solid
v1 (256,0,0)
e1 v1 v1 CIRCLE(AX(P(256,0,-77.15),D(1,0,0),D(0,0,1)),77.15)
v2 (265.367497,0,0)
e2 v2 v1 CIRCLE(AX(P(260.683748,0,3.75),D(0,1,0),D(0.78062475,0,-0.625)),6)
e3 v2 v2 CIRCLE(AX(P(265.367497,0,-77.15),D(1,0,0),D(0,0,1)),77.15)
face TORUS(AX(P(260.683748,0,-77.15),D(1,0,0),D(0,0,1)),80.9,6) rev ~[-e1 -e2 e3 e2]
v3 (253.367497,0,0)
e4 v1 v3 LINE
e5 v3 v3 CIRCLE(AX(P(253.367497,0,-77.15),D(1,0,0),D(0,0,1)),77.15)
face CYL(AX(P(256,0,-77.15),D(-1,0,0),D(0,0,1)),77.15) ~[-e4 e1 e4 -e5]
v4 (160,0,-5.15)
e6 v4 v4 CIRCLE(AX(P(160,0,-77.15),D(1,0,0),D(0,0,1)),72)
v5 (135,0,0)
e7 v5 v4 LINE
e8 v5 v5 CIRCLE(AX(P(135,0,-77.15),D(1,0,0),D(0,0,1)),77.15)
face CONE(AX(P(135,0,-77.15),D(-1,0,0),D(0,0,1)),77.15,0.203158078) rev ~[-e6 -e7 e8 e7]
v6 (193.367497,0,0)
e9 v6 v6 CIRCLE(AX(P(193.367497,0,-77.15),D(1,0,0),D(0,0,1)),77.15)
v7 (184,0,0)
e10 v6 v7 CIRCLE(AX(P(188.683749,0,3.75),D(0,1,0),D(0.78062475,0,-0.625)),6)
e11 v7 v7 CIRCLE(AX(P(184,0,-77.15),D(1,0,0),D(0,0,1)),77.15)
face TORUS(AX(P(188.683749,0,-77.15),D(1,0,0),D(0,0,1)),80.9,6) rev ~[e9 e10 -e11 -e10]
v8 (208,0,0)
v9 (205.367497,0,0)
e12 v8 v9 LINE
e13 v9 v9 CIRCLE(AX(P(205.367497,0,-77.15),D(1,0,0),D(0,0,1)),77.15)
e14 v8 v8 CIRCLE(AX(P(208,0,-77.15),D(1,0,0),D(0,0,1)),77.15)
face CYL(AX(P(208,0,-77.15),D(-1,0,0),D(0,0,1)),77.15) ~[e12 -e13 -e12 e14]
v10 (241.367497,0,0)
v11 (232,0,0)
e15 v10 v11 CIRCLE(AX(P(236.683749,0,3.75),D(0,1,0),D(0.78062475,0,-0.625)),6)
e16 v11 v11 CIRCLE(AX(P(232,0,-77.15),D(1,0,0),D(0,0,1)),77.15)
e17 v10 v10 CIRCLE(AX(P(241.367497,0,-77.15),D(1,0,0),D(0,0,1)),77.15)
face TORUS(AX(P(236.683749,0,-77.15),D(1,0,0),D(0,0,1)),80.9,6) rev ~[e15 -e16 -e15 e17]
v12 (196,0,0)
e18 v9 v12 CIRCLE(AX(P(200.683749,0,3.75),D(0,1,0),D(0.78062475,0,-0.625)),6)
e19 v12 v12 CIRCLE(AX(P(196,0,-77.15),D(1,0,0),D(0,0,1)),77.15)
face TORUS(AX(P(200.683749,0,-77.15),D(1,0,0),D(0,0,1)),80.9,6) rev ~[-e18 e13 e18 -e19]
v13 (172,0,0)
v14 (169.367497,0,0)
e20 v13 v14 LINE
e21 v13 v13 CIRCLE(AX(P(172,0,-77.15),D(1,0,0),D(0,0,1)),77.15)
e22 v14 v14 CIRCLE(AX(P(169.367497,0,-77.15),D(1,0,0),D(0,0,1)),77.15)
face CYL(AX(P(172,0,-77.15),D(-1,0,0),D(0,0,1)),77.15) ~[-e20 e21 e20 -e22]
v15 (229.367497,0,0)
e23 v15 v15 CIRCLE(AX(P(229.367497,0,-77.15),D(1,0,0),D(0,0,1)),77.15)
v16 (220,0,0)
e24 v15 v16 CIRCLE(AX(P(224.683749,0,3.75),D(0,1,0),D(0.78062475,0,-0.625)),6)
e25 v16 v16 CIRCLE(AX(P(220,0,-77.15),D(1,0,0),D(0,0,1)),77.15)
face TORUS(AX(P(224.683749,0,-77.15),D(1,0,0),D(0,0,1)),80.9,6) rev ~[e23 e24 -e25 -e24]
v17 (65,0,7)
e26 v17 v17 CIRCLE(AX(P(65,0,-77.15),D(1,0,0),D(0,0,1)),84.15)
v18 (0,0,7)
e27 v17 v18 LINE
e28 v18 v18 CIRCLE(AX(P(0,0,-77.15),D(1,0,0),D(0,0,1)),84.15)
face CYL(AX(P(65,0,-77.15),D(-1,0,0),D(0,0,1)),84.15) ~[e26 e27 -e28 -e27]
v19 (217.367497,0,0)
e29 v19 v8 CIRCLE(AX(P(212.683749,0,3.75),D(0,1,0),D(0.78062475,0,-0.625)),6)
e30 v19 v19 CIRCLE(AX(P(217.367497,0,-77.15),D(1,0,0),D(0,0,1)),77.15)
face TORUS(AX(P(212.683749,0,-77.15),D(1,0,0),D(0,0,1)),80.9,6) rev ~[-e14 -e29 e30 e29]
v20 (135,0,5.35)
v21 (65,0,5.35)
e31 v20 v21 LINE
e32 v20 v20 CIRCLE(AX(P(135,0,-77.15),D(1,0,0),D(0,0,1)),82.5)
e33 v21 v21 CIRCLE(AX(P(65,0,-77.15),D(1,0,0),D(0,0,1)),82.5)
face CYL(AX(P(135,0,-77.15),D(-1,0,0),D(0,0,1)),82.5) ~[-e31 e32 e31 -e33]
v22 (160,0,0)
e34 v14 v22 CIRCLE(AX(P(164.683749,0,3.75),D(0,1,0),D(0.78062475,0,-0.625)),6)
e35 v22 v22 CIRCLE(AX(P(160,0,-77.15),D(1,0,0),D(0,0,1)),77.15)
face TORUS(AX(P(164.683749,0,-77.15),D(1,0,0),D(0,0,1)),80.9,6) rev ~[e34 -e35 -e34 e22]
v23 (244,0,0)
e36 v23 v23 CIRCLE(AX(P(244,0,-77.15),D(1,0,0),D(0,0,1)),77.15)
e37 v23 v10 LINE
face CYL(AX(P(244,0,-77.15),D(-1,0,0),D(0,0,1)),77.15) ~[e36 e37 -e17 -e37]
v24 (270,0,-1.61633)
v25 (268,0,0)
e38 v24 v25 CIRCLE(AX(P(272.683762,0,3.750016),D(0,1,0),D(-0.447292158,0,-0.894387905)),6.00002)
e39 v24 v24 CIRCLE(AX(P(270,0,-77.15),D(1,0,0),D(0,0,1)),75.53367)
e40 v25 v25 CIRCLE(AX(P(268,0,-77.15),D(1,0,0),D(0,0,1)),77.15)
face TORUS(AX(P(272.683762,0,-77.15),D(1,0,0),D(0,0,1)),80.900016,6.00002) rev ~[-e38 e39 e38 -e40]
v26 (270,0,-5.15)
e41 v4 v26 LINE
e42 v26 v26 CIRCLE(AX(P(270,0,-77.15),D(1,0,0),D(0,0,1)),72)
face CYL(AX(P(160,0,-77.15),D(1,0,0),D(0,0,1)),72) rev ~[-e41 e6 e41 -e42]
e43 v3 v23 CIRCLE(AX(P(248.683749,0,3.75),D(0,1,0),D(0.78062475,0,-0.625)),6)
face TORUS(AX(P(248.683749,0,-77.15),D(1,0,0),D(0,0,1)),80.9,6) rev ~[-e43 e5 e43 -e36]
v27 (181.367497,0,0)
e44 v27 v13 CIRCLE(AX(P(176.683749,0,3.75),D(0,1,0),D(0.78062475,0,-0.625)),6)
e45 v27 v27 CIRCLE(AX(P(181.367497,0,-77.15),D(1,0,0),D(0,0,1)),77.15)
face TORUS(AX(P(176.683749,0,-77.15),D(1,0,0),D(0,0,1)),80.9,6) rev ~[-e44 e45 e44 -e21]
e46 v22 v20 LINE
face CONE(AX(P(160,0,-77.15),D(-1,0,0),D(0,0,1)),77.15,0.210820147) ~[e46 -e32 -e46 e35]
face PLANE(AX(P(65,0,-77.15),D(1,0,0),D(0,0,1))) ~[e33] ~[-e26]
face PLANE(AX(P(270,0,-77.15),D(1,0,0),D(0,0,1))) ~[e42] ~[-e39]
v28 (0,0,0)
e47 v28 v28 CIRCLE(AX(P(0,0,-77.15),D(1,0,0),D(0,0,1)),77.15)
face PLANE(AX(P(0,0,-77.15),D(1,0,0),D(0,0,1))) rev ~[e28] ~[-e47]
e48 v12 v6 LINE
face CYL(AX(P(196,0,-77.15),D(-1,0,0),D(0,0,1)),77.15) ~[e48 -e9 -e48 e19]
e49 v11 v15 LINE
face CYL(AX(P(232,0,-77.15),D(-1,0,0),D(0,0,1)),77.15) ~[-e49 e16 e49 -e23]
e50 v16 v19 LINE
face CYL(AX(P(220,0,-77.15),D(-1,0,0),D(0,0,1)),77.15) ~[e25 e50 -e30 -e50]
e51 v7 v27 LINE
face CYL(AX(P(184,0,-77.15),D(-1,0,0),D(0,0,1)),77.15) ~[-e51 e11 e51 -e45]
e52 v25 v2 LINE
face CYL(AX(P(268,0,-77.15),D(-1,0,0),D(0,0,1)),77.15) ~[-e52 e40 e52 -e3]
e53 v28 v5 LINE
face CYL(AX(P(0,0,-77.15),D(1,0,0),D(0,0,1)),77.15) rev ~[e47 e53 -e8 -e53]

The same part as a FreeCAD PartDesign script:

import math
import FreeCAD as App
import Part
import Sketcher

doc = App.newDocument("Part")
params = doc.addObject("Spreadsheet::Sheet", "Params")
for row, (alias, value) in enumerate([
    ("sketch1_radius", "6 mm"),
    ("sketch1_width", "135 mm"),
    ("sketch1_width2", "110 mm"),
    ("sketch1_width3", "70 mm"),
    ("sketch1_height", "7 mm"),
    ("revolution_angle", "360 deg"),
], start=1):
    params.set(f"A{row}", alias)
    params.set(f"B{row}", "=" + value)
    params.setAlias(f"B{row}", alias)

body = doc.addObject("PartDesign::Body", "Body")

sketch1 = body.newObject("Sketcher::SketchObject", "Sketch")
sketch1.AttachmentSupport = (doc.getObject("XZ_Plane"), [""])
sketch1.MapMode = "FlatFace"
sketch1.addGeometry([
    Part.LineSegment(App.Vector(0, 7, 0), App.Vector(0, 0, 0)),
    Part.LineSegment(App.Vector(0, 0, 0), App.Vector(135, 0, 0)),
    Part.LineSegment(App.Vector(135, 0, 0), App.Vector(160, -5.15, 0)),
    Part.LineSegment(App.Vector(160, -5.15, 0), App.Vector(270, -5.15, 0)),
    Part.LineSegment(App.Vector(270, -5.15, 0), App.Vector(270, -1.61633, 0)),
    Part.ArcOfCircle(Part.Circle(App.Vector(272.683762, 3.750016, 0), App.Vector(0, 0, 1), 6.00002), math.radians(-141.317777), math.radians(-116.570084)),
    Part.LineSegment(App.Vector(268, 0, 0), App.Vector(265.367497, 0, 0)),
    Part.ArcOfCircle(Part.Circle(App.Vector(260.683748, 3.75, 0), App.Vector(0, 0, 1), 6), math.radians(-141.317813), math.radians(-38.682187)),
    Part.LineSegment(App.Vector(256, 0, 0), App.Vector(253.367497, 0, 0)),
    Part.ArcOfCircle(Part.Circle(App.Vector(248.683749, 3.75, 0), App.Vector(0, 0, 1), 6), math.radians(-141.317813), math.radians(-38.682187)),
    Part.LineSegment(App.Vector(244, 0, 0), App.Vector(241.367497, 0, 0)),
    Part.ArcOfCircle(Part.Circle(App.Vector(236.683749, 3.75, 0), App.Vector(0, 0, 1), 6), math.radians(-141.317813), math.radians(-38.682187)),
    Part.LineSegment(App.Vector(232, 0, 0), App.Vector(229.367497, 0, 0)),
    Part.ArcOfCircle(Part.Circle(App.Vector(224.683749, 3.75, 0), App.Vector(0, 0, 1), 6), math.radians(-141.317813), math.radians(-38.682187)),
    Part.LineSegment(App.Vector(220, 0, 0), App.Vector(217.367497, 0, 0)),
    Part.ArcOfCircle(Part.Circle(App.Vector(212.683749, 3.75, 0), App.Vector(0, 0, 1), 6), math.radians(-141.317813), math.radians(-38.682187)),
    Part.LineSegment(App.Vector(208, 0, 0), App.Vector(205.367497, 0, 0)),
    Part.ArcOfCircle(Part.Circle(App.Vector(200.683749, 3.75, 0), App.Vector(0, 0, 1), 6), math.radians(-141.317813), math.radians(-38.682187)),
    Part.LineSegment(App.Vector(196, 0, 0), App.Vector(193.367497, 0, 0)),
    Part.ArcOfCircle(Part.Circle(App.Vector(188.683749, 3.75, 0), App.Vector(0, 0, 1), 6), math.radians(-141.317813), math.radians(-38.682187)),
    Part.LineSegment(App.Vector(184, 0, 0), App.Vector(181.367497, 0, 0)),
    Part.ArcOfCircle(Part.Circle(App.Vector(176.683749, 3.75, 0), App.Vector(0, 0, 1), 6), math.radians(-141.317813), math.radians(-38.682187)),
    Part.LineSegment(App.Vector(172, 0, 0), App.Vector(169.367497, 0, 0)),
    Part.ArcOfCircle(Part.Circle(App.Vector(164.683749, 3.75, 0), App.Vector(0, 0, 1), 6), math.radians(-141.317813), math.radians(-38.682187)),
    Part.LineSegment(App.Vector(160, 0, 0), App.Vector(135, 5.35, 0)),
    Part.LineSegment(App.Vector(135, 5.35, 0), App.Vector(65, 5.35, 0)),
    Part.LineSegment(App.Vector(65, 5.35, 0), App.Vector(65, 7, 0)),
    Part.LineSegment(App.Vector(65, 7, 0), App.Vector(0, 7, 0)),
], False)
sketch1.addGeometry(Part.LineSegment(App.Vector(0, -77.15, 0), App.Vector(272.683762, -77.15, 0)), True)
sketch1.addConstraint([
    Sketcher.Constraint("Coincident", 0, 2, 1, 1),
    Sketcher.Constraint("Coincident", 1, 2, 2, 1),
    Sketcher.Constraint("Coincident", 2, 2, 3, 1),
    Sketcher.Constraint("Coincident", 3, 2, 4, 1),
    Sketcher.Constraint("Coincident", 4, 2, 5, 2),
    Sketcher.Constraint("Coincident", 5, 1, 6, 1),
    Sketcher.Constraint("Coincident", 6, 2, 7, 2),
    Sketcher.Constraint("Coincident", 7, 1, 8, 1),
    Sketcher.Constraint("Coincident", 8, 2, 9, 2),
    Sketcher.Constraint("Coincident", 9, 1, 10, 1),
    Sketcher.Constraint("Coincident", 10, 2, 11, 2),
    Sketcher.Constraint("Coincident", 11, 1, 12, 1),
    Sketcher.Constraint("Coincident", 12, 2, 13, 2),
    Sketcher.Constraint("Coincident", 13, 1, 14, 1),
    Sketcher.Constraint("Coincident", 14, 2, 15, 2),
    Sketcher.Constraint("Coincident", 15, 1, 16, 1),
    Sketcher.Constraint("Coincident", 16, 2, 17, 2),
    Sketcher.Constraint("Coincident", 17, 1, 18, 1),
    Sketcher.Constraint("Coincident", 18, 2, 19, 2),
    Sketcher.Constraint("Coincident", 19, 1, 20, 1),
    Sketcher.Constraint("Coincident", 20, 2, 21, 2),
    Sketcher.Constraint("Coincident", 21, 1, 22, 1),
    Sketcher.Constraint("Coincident", 22, 2, 23, 2),
    Sketcher.Constraint("Coincident", 23, 1, 24, 1),
    Sketcher.Constraint("Coincident", 24, 2, 25, 1),
    Sketcher.Constraint("Coincident", 25, 2, 26, 1),
    Sketcher.Constraint("Coincident", 26, 2, 27, 1),
    Sketcher.Constraint("Coincident", 27, 2, 0, 1),
    Sketcher.Constraint("Vertical", 0),
    Sketcher.Constraint("Horizontal", 1),
    Sketcher.Constraint("Horizontal", 3),
    Sketcher.Constraint("Vertical", 4),
    Sketcher.Constraint("Horizontal", 6),
    Sketcher.Constraint("Horizontal", 8),
    Sketcher.Constraint("Horizontal", 10),
    Sketcher.Constraint("Horizontal", 12),
    Sketcher.Constraint("Horizontal", 14),
    Sketcher.Constraint("Horizontal", 16),
    Sketcher.Constraint("Horizontal", 18),
    Sketcher.Constraint("Horizontal", 20),
    Sketcher.Constraint("Horizontal", 22),
    Sketcher.Constraint("Horizontal", 25),
    Sketcher.Constraint("Vertical", 26),
    Sketcher.Constraint("Horizontal", 27),
    Sketcher.Constraint("Horizontal", 28),
    Sketcher.Constraint("Coincident", 0, 2, -1, 1),
    Sketcher.Constraint("Equal", 7, 9),
    Sketcher.Constraint("Equal", 9, 11),
    Sketcher.Constraint("Equal", 11, 13),
    Sketcher.Constraint("Equal", 13, 15),
    Sketcher.Constraint("Equal", 15, 17),
    Sketcher.Constraint("Equal", 17, 19),
    Sketcher.Constraint("Equal", 19, 21),
    Sketcher.Constraint("Equal", 21, 23),
    Sketcher.Constraint("PointOnObject", 5, 1, -1),
    Sketcher.Constraint("PointOnObject", 7, 1, -1),
    Sketcher.Constraint("PointOnObject", 9, 1, -1),
    Sketcher.Constraint("PointOnObject", 11, 1, -1),
    Sketcher.Constraint("PointOnObject", 13, 1, -1),
    Sketcher.Constraint("PointOnObject", 15, 1, -1),
    Sketcher.Constraint("PointOnObject", 17, 1, -1),
    Sketcher.Constraint("PointOnObject", 19, 1, -1),
    Sketcher.Constraint("PointOnObject", 21, 1, -1),
    Sketcher.Constraint("PointOnObject", 23, 1, -1),
    Sketcher.Constraint("PointOnObject", 28, 1, -2),
    Sketcher.Constraint("Horizontal", 7, 3, 9, 3),
    Sketcher.Constraint("Horizontal", 9, 3, 11, 3),
    Sketcher.Constraint("Horizontal", 11, 3, 13, 3),
    Sketcher.Constraint("Horizontal", 13, 3, 15, 3),
    Sketcher.Constraint("Horizontal", 15, 3, 17, 3),
    Sketcher.Constraint("Horizontal", 17, 3, 19, 3),
    Sketcher.Constraint("Horizontal", 19, 3, 21, 3),
    Sketcher.Constraint("Horizontal", 21, 3, 23, 3),
    Sketcher.Constraint("Vertical", 2, 2, 23, 1),
    Sketcher.Constraint("Vertical", 1, 2, 24, 2),
    Sketcher.Constraint("Vertical", 5, 3, 28, 2),
    Sketcher.Constraint("Equal", 6, 8),
    Sketcher.Constraint("Equal", 8, 10),
    Sketcher.Constraint("Equal", 10, 12),
    Sketcher.Constraint("Equal", 12, 14),
    Sketcher.Constraint("Equal", 14, 16),
    Sketcher.Constraint("Equal", 16, 18),
    Sketcher.Constraint("Equal", 18, 20),
    Sketcher.Constraint("Equal", 20, 22),
    Sketcher.Constraint("Radius", 7, 6.0),
    Sketcher.Constraint("DistanceX", 1, 1, 1, 2, 135.0),
    Sketcher.Constraint("DistanceX", 3, 1, 3, 2, 110.0),
    Sketcher.Constraint("DistanceX", 25, 2, 25, 1, 70.0),
    Sketcher.Constraint("DistanceY", 0, 2, 0, 1, 7.0),
    Sketcher.Constraint("DistanceX", -1, 1, 2, 2, 160.0),
    Sketcher.Constraint("DistanceX", -1, 1, 5, 1, 268.0),
    Sketcher.Constraint("DistanceY", 28, 2, 3, 2, 72.0),
    Sketcher.Constraint("DistanceY", 26, 1, 26, 2, 1.65),
    Sketcher.Constraint("DistanceY", 2, 2, 23, 3, 8.9),
    Sketcher.Constraint("DistanceY", 2, 2, 24, 2, 10.5),
    Sketcher.Constraint("Radius", 5, 6.00002),
    Sketcher.Constraint("DistanceY", 4, 1, 4, 2, 3.53367),
])
sketch1.setExpression("Constraints[84]", "Params.sketch1_radius")
sketch1.setExpression("Constraints[85]", "Params.sketch1_width")
sketch1.setExpression("Constraints[86]", "Params.sketch1_width2")
sketch1.setExpression("Constraints[87]", "Params.sketch1_width3")
sketch1.setExpression("Constraints[88]", "Params.sketch1_height")
revolution = body.newObject("PartDesign::Revolution", "Revolution")
revolution.Profile = sketch1
revolution.ReferenceAxis = (sketch1, ["Axis0"])
revolution.setExpression("Angle", "Params.revolution_angle")

doc.recompute()
